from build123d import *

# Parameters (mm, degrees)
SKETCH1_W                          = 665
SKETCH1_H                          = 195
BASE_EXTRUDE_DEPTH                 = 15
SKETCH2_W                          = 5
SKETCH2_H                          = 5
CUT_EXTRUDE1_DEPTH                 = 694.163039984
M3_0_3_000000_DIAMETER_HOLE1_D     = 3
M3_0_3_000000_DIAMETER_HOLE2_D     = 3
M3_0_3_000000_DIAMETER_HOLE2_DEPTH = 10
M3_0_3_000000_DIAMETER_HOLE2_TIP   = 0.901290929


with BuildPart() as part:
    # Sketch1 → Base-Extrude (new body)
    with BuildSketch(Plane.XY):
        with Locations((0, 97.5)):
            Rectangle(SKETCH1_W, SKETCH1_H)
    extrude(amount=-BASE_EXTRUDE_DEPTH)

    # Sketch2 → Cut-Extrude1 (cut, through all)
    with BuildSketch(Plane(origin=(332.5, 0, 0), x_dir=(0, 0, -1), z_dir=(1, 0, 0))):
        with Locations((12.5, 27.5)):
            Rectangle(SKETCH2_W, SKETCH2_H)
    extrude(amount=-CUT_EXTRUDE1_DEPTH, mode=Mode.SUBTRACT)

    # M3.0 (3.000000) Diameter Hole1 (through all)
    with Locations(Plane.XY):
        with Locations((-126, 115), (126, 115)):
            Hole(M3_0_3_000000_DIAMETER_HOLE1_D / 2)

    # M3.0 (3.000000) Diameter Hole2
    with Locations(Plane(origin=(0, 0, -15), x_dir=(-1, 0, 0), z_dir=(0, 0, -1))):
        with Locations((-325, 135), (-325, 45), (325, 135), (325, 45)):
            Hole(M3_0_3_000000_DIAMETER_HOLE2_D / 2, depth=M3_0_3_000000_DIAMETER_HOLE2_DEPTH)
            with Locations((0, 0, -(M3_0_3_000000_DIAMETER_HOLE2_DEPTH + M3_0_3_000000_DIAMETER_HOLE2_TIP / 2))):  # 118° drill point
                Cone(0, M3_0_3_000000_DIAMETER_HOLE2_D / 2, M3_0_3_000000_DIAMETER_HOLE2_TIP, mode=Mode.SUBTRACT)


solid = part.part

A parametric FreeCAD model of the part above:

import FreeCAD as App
import Part
import Sketcher
from FreeCAD import Vector
Q = App.Units.Quantity


def add_polygon(sketch, points):
    """Adds a closed chain of lines whose ends are joined by coincident constraints."""
    first, n = sketch.GeometryCount, len(points)
    for a, b in zip(points, points[1:] + points[:1]):
        sketch.addGeometry(Part.LineSegment(App.Vector(*a, 0), App.Vector(*b, 0)), False)
    for i in range(n):
        sketch.addConstraint(Sketcher.Constraint("Coincident", first + i, 2, first + (i + 1) % n, 1))

doc = App.newDocument("Part")
body = doc.addObject("PartDesign::Body", "Body")

# Sketch on XY plane
sketch1 = body.newObject("Sketcher::SketchObject", "Sketch")
sketch1.AttachmentSupport = (doc.getObject("XY_Plane"), [""])
sketch1.MapMode = "FlatFace"
add_polygon(sketch1, [(-332, 195), (-332, 0), (332, 0), (332, 195)])  # lines 0-3
sketch1.addConstraint(Sketcher.Constraint("Vertical", 0))
sketch1.addConstraint(Sketcher.Constraint("Horizontal", 1))
sketch1.addConstraint(Sketcher.Constraint("Vertical", 2))
sketch1.addConstraint(Sketcher.Constraint("Horizontal", 3))
sketch1.addConstraint(Sketcher.Constraint("Symmetric", 0, 2, 1, 2, -1, 1))
sketch1.addConstraint(Sketcher.Constraint("DistanceX", 1, 1, 1, 2, Q("665 mm")))
sketch1.addConstraint(Sketcher.Constraint("DistanceY", 0, 2, 0, 1, Q("195 mm")))
pad1 = body.newObject("PartDesign::Pad", "Pad")
pad1.Profile = sketch1
pad1.Length = 15
pad1.Reversed = True

# Sketch on YZ plane
sketch2 = body.newObject("Sketcher::SketchObject", "Sketch001")
sketch2.AttachmentSupport = (doc.getObject("YZ_Plane"), [""])
sketch2.MapMode = "FlatFace"
sketch2.AttachmentOffset = App.Placement(Vector(0, 0, 332.5), App.Rotation())
add_polygon(sketch2, [(30, -10), (25, -10), (25, -15), (30, -15)])  # lines 0-3
sketch2.addConstraint(Sketcher.Constraint("Horizontal", 0))
sketch2.addConstraint(Sketcher.Constraint("Vertical", 1))
sketch2.addConstraint(Sketcher.Constraint("Horizontal", 2))
sketch2.addConstraint(Sketcher.Constraint("Vertical", 3))
sketch2.addConstraint(Sketcher.Constraint("Equal", 2, 1))
sketch2.addConstraint(Sketcher.Constraint("DistanceX", 0, 2, 0, 1, Q("5 mm")))
sketch2.addConstraint(Sketcher.Constraint("DistanceX", -1, 1, 0, 2, Q("25 mm")))
sketch2.addConstraint(Sketcher.Constraint("DistanceY", 0, 2, -1, 1, Q("10 mm")))
pocket1 = body.newObject("PartDesign::Pocket", "Pocket")
pocket1.Profile = sketch2
pocket1.Type = "ThroughAll"

# Sketch on XY plane
sketch3 = body.newObject("Sketcher::SketchObject", "Sketch002")
sketch3.AttachmentSupport = (doc.getObject("XY_Plane"), [""])
sketch3.MapMode = "FlatFace"
sketch3.addGeometry(Part.Circle(Vector(-126, 115, 0), Vector(0, 0, 1), 1.5), False)
sketch3.addGeometry(Part.Circle(Vector(126, 115, 0), Vector(0, 0, 1), 1.5), False)
sketch3.addConstraint(Sketcher.Constraint("Equal", 0, 1))
sketch3.addConstraint(Sketcher.Constraint("Symmetric", 0, 3, 1, 3, -2))
sketch3.addConstraint(Sketcher.Constraint("Diameter", 0, Q("3 mm")))
sketch3.addConstraint(Sketcher.Constraint("DistanceX", 0, 3, -1, 1, Q("126 mm")))
sketch3.addConstraint(Sketcher.Constraint("DistanceY", -1, 1, 0, 3, Q("115 mm")))
doc.recompute()
hole = body.newObject("PartDesign::Hole", "Hole")
hole.Profile = sketch3
hole.ThreadType = "None"
hole.Diameter = 3
hole.DepthType = "ThroughAll"

# Sketch on XY plane
sketch4 = body.newObject("Sketcher::SketchObject", "Sketch003")
sketch4.AttachmentSupport = (doc.getObject("XY_Plane"), [""])
sketch4.MapMode = "FlatFace"
sketch4.AttachmentOffset = App.Placement(Vector(0, 0, -15), App.Rotation())
sketch4.addGeometry(Part.Circle(Vector(325, 135, 0), Vector(0, 0, 1), 1.5), False)
sketch4.addGeometry(Part.Circle(Vector(325, 45, 0), Vector(0, 0, 1), 1.5), False)
sketch4.addGeometry(Part.Circle(Vector(-325, 135, 0), Vector(0, 0, 1), 1.5), False)
sketch4.addGeometry(Part.Circle(Vector(-325, 45, 0), Vector(0, 0, 1), 1.5), False)
sketch4.addConstraint(Sketcher.Constraint("Equal", 0, 1))
sketch4.addConstraint(Sketcher.Constraint("Equal", 1, 2))
sketch4.addConstraint(Sketcher.Constraint("Equal", 2, 3))
sketch4.addConstraint(Sketcher.Constraint("Symmetric", 0, 3, 2, 3, -2))
sketch4.addConstraint(Sketcher.Constraint("Symmetric", 1, 3, 3, 3, -2))
sketch4.addConstraint(Sketcher.Constraint("Vertical", 0, 3, 1, 3))
sketch4.addConstraint(Sketcher.Constraint("Diameter", 0, Q("3 mm")))
sketch4.addConstraint(Sketcher.Constraint("DistanceX", -1, 1, 0, 3, Q("325 mm")))
sketch4.addConstraint(Sketcher.Constraint("DistanceY", -1, 1, 0, 3, Q("135 mm")))
sketch4.addConstraint(Sketcher.Constraint("DistanceY", -1, 1, 1, 3, Q("45 mm")))
doc.recompute()
hole2 = body.newObject("PartDesign::Hole", "Hole001")
hole2.Profile = sketch4
hole2.ThreadType = "None"
hole2.Diameter = 3
hole2.DepthType = "Dimension"
hole2.Depth = 10
hole2.DrillPoint = "Angled"
hole2.DrillPointAngle = 118
hole2.Reversed = True

doc.recompute()
